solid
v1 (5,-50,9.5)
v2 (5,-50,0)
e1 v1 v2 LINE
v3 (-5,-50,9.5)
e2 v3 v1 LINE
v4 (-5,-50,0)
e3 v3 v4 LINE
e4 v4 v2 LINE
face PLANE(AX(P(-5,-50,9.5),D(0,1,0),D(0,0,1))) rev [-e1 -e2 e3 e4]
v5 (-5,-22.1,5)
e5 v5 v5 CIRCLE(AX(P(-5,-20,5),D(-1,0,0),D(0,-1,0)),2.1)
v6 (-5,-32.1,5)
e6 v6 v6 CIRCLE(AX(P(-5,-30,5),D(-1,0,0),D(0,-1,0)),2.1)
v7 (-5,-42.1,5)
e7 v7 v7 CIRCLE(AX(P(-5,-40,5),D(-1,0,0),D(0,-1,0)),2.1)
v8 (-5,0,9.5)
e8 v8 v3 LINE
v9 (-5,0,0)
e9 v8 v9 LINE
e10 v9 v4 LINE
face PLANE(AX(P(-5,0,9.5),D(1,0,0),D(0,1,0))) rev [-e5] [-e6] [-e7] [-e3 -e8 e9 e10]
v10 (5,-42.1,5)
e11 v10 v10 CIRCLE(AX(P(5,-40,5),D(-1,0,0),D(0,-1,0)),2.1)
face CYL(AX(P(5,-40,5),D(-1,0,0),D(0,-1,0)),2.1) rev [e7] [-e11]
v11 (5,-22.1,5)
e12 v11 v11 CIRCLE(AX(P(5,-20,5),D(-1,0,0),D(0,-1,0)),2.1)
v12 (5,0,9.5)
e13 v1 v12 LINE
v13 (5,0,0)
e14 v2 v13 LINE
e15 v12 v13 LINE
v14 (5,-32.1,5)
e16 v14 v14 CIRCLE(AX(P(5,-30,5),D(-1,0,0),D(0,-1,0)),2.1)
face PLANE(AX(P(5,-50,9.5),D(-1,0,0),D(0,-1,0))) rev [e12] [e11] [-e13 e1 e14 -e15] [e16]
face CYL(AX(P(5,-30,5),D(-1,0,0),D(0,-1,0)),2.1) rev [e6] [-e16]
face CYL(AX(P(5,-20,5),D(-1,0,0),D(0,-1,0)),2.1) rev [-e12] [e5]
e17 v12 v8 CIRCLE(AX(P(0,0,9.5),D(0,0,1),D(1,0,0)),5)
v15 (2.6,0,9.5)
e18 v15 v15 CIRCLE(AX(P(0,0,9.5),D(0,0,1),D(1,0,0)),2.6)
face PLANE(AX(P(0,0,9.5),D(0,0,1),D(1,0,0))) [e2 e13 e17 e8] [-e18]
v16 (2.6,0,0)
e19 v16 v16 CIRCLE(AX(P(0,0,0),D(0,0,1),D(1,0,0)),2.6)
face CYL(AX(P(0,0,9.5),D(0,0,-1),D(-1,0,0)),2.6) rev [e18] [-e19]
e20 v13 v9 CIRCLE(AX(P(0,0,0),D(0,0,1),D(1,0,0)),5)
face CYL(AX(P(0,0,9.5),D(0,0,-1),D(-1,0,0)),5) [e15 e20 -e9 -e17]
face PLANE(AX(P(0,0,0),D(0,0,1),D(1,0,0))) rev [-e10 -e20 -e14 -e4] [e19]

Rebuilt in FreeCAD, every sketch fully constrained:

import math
import FreeCAD as App
import Part
import Sketcher

V = App.Vector

doc = App.newDocument("Part")
body = doc.addObject("PartDesign::Body", "Body")

# Sketch on XY plane
sketch1 = body.newObject("Sketcher::SketchObject", "Sketch")
sketch1.AttachmentSupport = (doc.getObject("XY_Plane"), [""])
sketch1.MapMode = "FlatFace"
sketch1.addGeometry([
    Part.LineSegment(V(-5, 0, 0), V(-5, -50, 0)),  # 0
    Part.LineSegment(V(-5, -50, 0), V(5, -50, 0)),  # 1
    Part.LineSegment(V(5, -50, 0), V(5, 0, 0)),  # 2
    Part.ArcOfCircle(Part.Circle(V(0, 0, 0), V(0, 0, 1), 5), math.radians(0), math.radians(180)),  # 3
    Part.Circle(V(0, 0, 0), V(0, 0, 1), 2.6),  # 4
], False)
sketch1.addConstraint([
    Sketcher.Constraint("Coincident", 0, 2, 1, 1),
    Sketcher.Constraint("Coincident", 1, 2, 2, 1),
    Sketcher.Constraint("Tangent", 2, 2, 3, 1),
    Sketcher.Constraint("Tangent", 3, 2, 0, 1),
    Sketcher.Constraint("Vertical", 0),
    Sketcher.Constraint("Horizontal", 1),
    Sketcher.Constraint("Vertical", 2),
    Sketcher.Constraint("Coincident", 3, 3, -1, 1),
    Sketcher.Constraint("Coincident", 4, 3, -1, 1),
    Sketcher.Constraint("Radius", 3, 5.0),
    Sketcher.Constraint("Diameter", 4, 5.2),
    Sketcher.Constraint("DistanceY", 0, 2, 0, 1, 50.0),
])
pad1 = body.newObject("PartDesign::Pad", "Pad")
pad1.Profile = sketch1
pad1.Length = 9.5

# Sketch on YZ plane
sketch2 = body.newObject("Sketcher::SketchObject", "Sketch001")
sketch2.AttachmentSupport = (doc.getObject("YZ_Plane"), [""])
sketch2.MapMode = "FlatFace"
sketch2.AttachmentOffset = App.Placement(V(0, 0, -5), App.Rotation())
sketch2.addGeometry([
    Part.Circle(V(-20, 5, 0), V(0, 0, 1), 2.1),
    Part.Circle(V(-30, 5, 0), V(0, 0, 1), 2.1),
    Part.Circle(V(-40, 5, 0), V(0, 0, 1), 2.1),
], False)
sketch2.addConstraint([
    Sketcher.Constraint("Equal", 0, 1),
    Sketcher.Constraint("Equal", 1, 2),
    Sketcher.Constraint("Horizontal", 0, 3, 1, 3),
    Sketcher.Constraint("Horizontal", 1, 3, 2, 3),
    Sketcher.Constraint("Diameter", 0, 4.2),
    Sketcher.Constraint("DistanceX", 0, 3, -1, 1, 20.0),
    Sketcher.Constraint("DistanceY", -1, 1, 0, 3, 5.0),
    Sketcher.Constraint("DistanceX", 1, 3, -1, 1, 30.0),
    Sketcher.Constraint("DistanceX", 2, 3, -1, 1, 40.0),
])
pocket1 = body.newObject("PartDesign::Pocket", "Pocket")
pocket1.Profile = sketch2
pocket1.Length = 10
pocket1.Reversed = True

doc.recompute()
